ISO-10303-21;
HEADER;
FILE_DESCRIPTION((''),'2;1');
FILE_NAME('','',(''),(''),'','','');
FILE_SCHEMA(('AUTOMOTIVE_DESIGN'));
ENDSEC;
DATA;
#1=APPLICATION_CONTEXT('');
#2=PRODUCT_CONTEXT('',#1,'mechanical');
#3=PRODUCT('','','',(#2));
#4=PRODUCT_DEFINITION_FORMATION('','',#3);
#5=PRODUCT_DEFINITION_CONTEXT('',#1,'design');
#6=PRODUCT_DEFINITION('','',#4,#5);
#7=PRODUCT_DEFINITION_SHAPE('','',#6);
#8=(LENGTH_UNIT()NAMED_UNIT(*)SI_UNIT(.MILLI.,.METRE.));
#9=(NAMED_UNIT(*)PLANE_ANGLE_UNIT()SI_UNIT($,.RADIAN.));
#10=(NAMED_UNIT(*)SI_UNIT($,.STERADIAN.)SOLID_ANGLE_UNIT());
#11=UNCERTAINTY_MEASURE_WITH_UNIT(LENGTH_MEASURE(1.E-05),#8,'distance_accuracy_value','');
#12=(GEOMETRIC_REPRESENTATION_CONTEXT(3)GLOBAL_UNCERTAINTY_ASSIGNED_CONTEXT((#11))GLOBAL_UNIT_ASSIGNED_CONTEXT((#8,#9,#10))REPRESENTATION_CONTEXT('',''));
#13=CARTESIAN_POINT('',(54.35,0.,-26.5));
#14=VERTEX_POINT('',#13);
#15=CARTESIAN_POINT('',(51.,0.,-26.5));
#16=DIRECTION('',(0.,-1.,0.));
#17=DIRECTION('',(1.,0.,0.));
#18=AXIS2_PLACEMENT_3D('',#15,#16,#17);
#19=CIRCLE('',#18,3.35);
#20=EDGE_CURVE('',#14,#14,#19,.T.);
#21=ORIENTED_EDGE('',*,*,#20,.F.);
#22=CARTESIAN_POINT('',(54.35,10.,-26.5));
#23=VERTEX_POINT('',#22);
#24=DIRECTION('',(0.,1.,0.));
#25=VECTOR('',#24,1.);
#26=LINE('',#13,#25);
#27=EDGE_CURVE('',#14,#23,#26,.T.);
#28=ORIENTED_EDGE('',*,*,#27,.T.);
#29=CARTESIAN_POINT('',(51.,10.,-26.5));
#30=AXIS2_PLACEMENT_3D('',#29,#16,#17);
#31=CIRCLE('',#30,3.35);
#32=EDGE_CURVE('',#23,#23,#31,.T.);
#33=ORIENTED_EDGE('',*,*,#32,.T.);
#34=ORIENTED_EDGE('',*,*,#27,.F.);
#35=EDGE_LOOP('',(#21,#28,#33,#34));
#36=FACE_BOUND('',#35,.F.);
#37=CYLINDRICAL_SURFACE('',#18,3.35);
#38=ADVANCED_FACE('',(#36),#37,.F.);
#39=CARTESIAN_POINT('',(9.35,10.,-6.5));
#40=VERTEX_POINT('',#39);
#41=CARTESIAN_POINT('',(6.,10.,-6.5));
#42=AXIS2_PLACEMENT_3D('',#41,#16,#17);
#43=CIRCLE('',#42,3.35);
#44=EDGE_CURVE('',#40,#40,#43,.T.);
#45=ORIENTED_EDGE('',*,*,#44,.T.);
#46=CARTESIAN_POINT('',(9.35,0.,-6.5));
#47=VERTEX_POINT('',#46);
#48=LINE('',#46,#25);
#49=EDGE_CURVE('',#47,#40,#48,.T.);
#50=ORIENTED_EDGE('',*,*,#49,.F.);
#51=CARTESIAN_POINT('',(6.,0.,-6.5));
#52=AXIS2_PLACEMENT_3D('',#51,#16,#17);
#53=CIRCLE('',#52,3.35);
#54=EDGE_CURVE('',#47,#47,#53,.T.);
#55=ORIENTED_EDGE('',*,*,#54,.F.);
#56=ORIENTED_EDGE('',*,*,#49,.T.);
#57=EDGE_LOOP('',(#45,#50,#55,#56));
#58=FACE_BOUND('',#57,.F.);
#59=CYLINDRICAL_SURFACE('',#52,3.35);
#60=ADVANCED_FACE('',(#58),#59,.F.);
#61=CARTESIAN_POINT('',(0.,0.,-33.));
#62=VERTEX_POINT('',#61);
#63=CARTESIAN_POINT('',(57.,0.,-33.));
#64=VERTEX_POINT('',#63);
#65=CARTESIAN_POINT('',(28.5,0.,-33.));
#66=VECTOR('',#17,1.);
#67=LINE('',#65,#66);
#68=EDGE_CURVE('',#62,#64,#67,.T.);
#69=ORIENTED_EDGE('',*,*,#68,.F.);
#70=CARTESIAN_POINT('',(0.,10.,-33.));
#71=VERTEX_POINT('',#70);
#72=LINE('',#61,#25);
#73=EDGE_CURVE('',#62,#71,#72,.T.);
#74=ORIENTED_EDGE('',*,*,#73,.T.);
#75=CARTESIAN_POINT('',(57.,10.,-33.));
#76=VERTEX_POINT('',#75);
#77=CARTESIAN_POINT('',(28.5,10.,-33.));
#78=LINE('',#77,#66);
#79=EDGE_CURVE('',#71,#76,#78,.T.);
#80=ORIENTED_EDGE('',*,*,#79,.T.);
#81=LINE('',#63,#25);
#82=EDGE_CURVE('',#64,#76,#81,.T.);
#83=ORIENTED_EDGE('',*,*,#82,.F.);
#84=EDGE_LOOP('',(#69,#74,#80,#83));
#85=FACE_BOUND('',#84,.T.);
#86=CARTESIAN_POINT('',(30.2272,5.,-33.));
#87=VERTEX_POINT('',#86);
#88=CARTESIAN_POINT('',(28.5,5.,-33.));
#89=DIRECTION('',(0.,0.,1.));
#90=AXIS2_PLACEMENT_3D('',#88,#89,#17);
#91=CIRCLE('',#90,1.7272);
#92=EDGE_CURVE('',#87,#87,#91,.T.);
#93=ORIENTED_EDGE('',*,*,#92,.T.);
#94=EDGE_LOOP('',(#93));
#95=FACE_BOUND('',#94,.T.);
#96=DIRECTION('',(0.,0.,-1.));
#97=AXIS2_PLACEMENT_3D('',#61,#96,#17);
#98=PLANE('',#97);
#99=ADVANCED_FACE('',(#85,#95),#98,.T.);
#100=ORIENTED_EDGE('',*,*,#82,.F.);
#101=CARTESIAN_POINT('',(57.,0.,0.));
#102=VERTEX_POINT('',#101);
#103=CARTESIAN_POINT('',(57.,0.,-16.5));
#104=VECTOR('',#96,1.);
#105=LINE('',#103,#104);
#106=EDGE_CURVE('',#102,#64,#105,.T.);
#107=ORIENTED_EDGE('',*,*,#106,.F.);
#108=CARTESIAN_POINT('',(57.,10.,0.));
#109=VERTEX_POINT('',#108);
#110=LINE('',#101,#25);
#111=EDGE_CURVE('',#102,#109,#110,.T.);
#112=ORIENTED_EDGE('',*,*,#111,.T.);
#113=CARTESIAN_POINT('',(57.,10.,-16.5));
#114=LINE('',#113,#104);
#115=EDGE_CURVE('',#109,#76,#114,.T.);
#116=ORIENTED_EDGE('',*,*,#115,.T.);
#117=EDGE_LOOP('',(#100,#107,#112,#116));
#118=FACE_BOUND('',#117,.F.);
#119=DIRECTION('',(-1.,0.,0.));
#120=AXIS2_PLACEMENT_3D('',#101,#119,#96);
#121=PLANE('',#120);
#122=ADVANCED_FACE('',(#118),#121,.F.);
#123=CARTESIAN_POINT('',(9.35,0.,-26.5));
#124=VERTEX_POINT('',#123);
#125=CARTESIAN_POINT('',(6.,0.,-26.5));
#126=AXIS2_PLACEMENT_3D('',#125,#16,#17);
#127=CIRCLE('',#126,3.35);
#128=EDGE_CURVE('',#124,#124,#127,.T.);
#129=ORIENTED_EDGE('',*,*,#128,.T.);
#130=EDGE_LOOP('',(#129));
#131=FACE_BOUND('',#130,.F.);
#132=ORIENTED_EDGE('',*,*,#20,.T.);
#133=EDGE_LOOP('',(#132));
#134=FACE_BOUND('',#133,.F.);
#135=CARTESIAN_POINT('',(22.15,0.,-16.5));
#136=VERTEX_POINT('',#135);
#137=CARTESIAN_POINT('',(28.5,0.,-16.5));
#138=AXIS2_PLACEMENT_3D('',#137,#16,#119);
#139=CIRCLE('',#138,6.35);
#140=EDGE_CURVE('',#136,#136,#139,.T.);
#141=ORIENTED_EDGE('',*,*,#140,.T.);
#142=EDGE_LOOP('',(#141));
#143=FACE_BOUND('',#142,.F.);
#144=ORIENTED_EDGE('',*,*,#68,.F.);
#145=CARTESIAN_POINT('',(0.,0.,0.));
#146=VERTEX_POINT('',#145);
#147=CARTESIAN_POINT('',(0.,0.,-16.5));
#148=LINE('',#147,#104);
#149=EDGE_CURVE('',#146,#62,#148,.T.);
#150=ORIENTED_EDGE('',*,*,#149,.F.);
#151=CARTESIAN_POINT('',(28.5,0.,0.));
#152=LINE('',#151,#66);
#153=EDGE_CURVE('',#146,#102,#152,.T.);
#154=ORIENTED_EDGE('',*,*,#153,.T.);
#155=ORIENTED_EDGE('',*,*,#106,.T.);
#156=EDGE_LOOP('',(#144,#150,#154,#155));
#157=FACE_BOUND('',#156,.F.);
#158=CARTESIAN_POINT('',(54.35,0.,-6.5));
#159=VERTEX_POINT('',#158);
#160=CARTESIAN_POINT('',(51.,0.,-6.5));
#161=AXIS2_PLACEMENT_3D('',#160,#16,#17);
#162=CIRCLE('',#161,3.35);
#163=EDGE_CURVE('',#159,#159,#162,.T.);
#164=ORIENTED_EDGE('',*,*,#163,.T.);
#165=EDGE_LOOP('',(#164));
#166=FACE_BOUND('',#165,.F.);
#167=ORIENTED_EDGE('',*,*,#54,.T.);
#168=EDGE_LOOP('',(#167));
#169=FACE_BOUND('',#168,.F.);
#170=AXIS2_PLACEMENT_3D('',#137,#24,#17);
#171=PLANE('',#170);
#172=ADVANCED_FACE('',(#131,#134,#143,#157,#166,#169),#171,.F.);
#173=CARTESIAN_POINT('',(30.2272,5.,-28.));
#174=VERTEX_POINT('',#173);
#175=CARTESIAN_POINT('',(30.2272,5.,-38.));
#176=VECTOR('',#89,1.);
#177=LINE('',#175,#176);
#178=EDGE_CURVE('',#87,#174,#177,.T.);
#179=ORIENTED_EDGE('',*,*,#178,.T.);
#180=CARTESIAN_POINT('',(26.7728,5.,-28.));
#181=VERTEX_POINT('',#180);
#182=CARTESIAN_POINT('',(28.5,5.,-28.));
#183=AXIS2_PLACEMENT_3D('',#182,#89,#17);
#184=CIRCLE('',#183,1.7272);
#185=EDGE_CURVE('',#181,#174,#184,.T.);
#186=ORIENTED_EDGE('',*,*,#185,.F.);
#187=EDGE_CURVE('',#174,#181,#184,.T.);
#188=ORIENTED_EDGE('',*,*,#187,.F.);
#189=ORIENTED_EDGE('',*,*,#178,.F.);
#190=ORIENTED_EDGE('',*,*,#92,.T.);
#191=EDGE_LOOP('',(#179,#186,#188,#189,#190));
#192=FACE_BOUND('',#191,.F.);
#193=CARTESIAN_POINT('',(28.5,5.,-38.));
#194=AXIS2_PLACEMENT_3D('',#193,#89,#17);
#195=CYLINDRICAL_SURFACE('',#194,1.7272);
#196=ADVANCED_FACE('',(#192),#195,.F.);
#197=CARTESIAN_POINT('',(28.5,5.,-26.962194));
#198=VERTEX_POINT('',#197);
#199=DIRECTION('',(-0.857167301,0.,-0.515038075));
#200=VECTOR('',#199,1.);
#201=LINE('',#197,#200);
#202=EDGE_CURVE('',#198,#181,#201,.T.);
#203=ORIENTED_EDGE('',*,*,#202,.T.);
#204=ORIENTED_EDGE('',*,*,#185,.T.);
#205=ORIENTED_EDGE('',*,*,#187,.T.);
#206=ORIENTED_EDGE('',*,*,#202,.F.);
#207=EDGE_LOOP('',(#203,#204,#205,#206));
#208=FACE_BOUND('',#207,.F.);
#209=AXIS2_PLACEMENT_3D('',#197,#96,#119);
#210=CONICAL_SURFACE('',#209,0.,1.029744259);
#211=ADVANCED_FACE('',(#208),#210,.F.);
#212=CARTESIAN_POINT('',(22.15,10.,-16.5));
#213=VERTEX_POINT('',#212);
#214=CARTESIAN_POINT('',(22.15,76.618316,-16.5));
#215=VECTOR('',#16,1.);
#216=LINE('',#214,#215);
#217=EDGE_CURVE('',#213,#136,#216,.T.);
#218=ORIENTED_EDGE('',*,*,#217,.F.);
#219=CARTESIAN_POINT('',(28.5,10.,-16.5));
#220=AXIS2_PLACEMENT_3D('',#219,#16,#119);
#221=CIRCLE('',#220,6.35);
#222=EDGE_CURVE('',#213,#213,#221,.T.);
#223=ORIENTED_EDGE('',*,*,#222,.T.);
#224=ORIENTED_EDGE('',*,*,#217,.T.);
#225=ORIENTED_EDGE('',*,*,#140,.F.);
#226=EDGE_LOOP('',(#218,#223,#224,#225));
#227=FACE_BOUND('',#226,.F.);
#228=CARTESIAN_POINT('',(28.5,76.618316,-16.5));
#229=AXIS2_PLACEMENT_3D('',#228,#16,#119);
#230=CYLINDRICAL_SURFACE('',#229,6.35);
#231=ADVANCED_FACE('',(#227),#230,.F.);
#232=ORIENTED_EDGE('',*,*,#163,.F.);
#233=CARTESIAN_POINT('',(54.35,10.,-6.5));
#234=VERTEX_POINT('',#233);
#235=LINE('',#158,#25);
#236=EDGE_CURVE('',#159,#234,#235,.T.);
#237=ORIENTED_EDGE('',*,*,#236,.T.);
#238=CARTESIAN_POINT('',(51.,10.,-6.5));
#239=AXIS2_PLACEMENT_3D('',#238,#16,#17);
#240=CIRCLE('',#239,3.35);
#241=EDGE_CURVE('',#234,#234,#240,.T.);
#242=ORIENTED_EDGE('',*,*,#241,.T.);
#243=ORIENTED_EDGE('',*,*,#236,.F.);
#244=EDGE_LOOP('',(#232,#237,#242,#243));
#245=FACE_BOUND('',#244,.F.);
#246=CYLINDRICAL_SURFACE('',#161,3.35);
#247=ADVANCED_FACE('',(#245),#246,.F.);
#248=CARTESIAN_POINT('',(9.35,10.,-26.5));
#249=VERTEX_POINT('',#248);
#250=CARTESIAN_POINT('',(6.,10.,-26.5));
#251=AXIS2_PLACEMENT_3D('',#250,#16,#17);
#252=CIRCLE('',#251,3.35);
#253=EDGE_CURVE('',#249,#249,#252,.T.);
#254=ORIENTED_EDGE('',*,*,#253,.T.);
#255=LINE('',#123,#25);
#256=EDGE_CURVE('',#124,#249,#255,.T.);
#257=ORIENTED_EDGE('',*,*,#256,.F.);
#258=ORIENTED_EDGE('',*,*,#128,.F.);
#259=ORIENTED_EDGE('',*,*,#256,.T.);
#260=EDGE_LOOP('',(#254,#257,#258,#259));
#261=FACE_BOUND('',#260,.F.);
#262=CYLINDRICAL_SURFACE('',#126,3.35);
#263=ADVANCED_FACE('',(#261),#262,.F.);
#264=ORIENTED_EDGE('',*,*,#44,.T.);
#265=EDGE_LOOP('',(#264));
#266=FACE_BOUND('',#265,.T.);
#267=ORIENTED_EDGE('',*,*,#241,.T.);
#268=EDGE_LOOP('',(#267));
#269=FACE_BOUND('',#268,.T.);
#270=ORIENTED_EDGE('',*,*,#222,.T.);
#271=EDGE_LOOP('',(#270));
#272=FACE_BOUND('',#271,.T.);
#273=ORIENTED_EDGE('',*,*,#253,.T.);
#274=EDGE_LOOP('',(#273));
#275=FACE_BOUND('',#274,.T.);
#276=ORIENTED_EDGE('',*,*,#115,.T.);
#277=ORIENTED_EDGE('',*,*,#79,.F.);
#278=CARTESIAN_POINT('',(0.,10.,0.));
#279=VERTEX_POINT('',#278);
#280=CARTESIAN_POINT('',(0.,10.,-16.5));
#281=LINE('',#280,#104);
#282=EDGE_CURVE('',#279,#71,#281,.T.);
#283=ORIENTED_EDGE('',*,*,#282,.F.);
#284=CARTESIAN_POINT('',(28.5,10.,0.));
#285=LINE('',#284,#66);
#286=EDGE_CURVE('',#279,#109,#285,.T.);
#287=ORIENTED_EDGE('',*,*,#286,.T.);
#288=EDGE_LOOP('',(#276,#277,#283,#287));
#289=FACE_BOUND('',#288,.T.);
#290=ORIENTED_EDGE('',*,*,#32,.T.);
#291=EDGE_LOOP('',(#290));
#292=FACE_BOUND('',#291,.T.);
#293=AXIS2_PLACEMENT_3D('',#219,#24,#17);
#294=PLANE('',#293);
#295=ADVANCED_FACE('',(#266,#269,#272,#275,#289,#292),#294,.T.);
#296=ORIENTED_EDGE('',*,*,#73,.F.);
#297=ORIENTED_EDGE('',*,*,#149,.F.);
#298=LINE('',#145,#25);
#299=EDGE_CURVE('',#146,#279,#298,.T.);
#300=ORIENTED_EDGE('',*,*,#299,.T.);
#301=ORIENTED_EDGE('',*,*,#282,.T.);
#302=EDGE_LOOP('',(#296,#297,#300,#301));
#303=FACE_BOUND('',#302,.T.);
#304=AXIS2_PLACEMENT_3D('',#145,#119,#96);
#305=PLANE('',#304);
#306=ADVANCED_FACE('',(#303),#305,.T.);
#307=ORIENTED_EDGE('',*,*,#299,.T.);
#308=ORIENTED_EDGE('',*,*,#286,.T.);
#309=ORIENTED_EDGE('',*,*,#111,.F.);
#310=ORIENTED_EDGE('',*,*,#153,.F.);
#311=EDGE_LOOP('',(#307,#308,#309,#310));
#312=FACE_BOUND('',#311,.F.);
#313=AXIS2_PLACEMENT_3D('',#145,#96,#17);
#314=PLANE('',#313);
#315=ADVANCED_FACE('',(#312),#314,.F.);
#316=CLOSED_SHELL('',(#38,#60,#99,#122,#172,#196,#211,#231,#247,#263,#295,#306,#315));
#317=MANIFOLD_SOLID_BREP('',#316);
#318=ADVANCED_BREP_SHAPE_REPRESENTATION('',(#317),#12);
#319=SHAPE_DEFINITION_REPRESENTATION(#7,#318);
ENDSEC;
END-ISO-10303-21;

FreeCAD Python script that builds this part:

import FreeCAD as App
import Part
import Sketcher

V = App.Vector
Q = App.Units.Quantity


def add_polygon(sketch, points):
    """Adds a closed chain of lines whose ends are joined by coincident constraints."""
    first, n = sketch.GeometryCount, len(points)
    for a, b in zip(points, points[1:] + points[:1]):
        sketch.addGeometry(Part.LineSegment(App.Vector(*a, 0), App.Vector(*b, 0)), False)
    for i in range(n):
        sketch.addConstraint(Sketcher.Constraint("Coincident", first + i, 2, first + (i + 1) % n, 1))

doc = App.newDocument("Part")
body = doc.addObject("PartDesign::Body", "Body")

# Sketch on XZ plane
sketch1 = body.newObject("Sketcher::SketchObject", "Sketch")
sketch1.AttachmentSupport = (doc.getObject("XZ_Plane"), [""])
sketch1.MapMode = "FlatFace"
add_polygon(sketch1, [(0, -33), (0, 0), (57, 0), (57, -33)])  # lines 0-3
sketch1.addConstraint([
    Sketcher.Constraint("Vertical", 0),
    Sketcher.Constraint("Horizontal", 1),
    Sketcher.Constraint("Vertical", 2),
    Sketcher.Constraint("Horizontal", 3),
    Sketcher.Constraint("Coincident", 0, 2, -1, 1),
    Sketcher.Constraint("DistanceX", 1, 1, 1, 2, Q("57 mm")),
    Sketcher.Constraint("DistanceY", 0, 1, 0, 2, Q("33 mm")),
])
pad1 = body.newObject("PartDesign::Pad", "Pad")
pad1.Profile = sketch1
pad1.Length = 10
pad1.Reversed = True

# Sketch on XZ plane
sketch2 = body.newObject("Sketcher::SketchObject", "Sketch001")
sketch2.AttachmentSupport = (doc.getObject("XZ_Plane"), [""])
sketch2.MapMode = "FlatFace"
sketch2.addGeometry(Part.Circle(V(6, -6.5, 0), V(0, 0, 1), 3.4), False)
sketch2.addConstraint([
    Sketcher.Constraint("Diameter", 0, Q("6.7 mm")),
    Sketcher.Constraint("DistanceX", -1, 1, 0, 3, Q("6 mm")),
    Sketcher.Constraint("DistanceY", 0, 3, -1, 1, Q("6.5 mm")),
])
pocket1 = body.newObject("PartDesign::Pocket", "Pocket")
pocket1.Profile = sketch2
pocket1.Type = "ThroughAll"

# Sketch on XZ plane
sketch3 = body.newObject("Sketcher::SketchObject", "Sketch002")
sketch3.AttachmentSupport = (doc.getObject("XZ_Plane"), [""])
sketch3.MapMode = "FlatFace"
sketch3.addGeometry(Part.Circle(V(51, -26.5, 0), V(0, 0, 1), 3.4), False)
sketch3.addConstraint([
    Sketcher.Constraint("Diameter", 0, Q("6.7 mm")),
    Sketcher.Constraint("DistanceX", -1, 1, 0, 3, Q("51 mm")),
    Sketcher.Constraint("DistanceY", 0, 3, -1, 1, Q("26.5 mm")),
])
pocket2 = body.newObject("PartDesign::Pocket", "Pocket001")
pocket2.Profile = sketch3
pocket2.Type = "ThroughAll"

# Sketch on XZ plane
sketch4 = body.newObject("Sketcher::SketchObject", "Sketch003")
sketch4.AttachmentSupport = (doc.getObject("XZ_Plane"), [""])
sketch4.MapMode = "FlatFace"
sketch4.addGeometry(Part.Circle(V(6, -26.5, 0), V(0, 0, 1), 3.4), False)
sketch4.addConstraint([
    Sketcher.Constraint("Diameter", 0, Q("6.7 mm")),
    Sketcher.Constraint("DistanceX", -1, 1, 0, 3, Q("6 mm")),
    Sketcher.Constraint("DistanceY", 0, 3, -1, 1, Q("26.5 mm")),
])
pocket3 = body.newObject("PartDesign::Pocket", "Pocket002")
pocket3.Profile = sketch4
pocket3.Type = "ThroughAll"

# Sketch on XZ plane
sketch5 = body.newObject("Sketcher::SketchObject", "Sketch004")
sketch5.AttachmentSupport = (doc.getObject("XZ_Plane"), [""])
sketch5.MapMode = "FlatFace"
sketch5.addGeometry(Part.Circle(V(51, -6.5, 0), V(0, 0, 1), 3.4), False)
sketch5.addConstraint([
    Sketcher.Constraint("Diameter", 0, Q("6.7 mm")),
    Sketcher.Constraint("DistanceX", -1, 1, 0, 3, Q("51 mm")),
    Sketcher.Constraint("DistanceY", 0, 3, -1, 1, Q("6.5 mm")),
])
pocket4 = body.newObject("PartDesign::Pocket", "Pocket003")
pocket4.Profile = sketch5
pocket4.Type = "ThroughAll"

# Sketch on XY plane
sketch6 = body.newObject("Sketcher::SketchObject", "Sketch005")
sketch6.AttachmentSupport = (doc.getObject("XY_Plane"), [""])
sketch6.MapMode = "FlatFace"
sketch6.AttachmentOffset = App.Placement(V(0, 0, -33), App.Rotation())
sketch6.addGeometry(Part.Circle(V(28.5, 5, 0), V(0, 0, 1), 1.7), False)
sketch6.addConstraint([
    Sketcher.Constraint("DistanceY", -1, 1, 0, 3, Q("5 mm")),
    Sketcher.Constraint("Diameter", 0, Q("3.4544 mm")),
    Sketcher.Constraint("DistanceX", -1, 1, 0, 3, Q("28.5 mm")),
])
doc.recompute()
hole = body.newObject("PartDesign::Hole", "Hole")
hole.Profile = sketch6
hole.ThreadType = "None"
hole.Diameter = 3.4544
hole.DepthType = "Dimension"
hole.Depth = 5
hole.DrillPoint = "Angled"
hole.DrillPointAngle = 118
hole.Reversed = True

# Sketch on XZ plane
sketch7 = body.newObject("Sketcher::SketchObject", "Sketch006")
sketch7.AttachmentSupport = (doc.getObject("XZ_Plane"), [""])
sketch7.MapMode = "FlatFace"
sketch7.AttachmentOffset = App.Placement(V(0, 0, -10), App.Rotation())
sketch7.addGeometry(Part.Circle(V(28, -16, 0), V(0, 0, 1), 6), False)
sketch7.addConstraint([
    Sketcher.Constraint("Diameter", 0, Q("12.7 mm")),
    Sketcher.Constraint("DistanceX", -1, 1, 0, 3, Q("28.5 mm")),
    Sketcher.Constraint("DistanceY", 0, 3, -1, 1, Q("16.5 mm")),
])
doc.recompute()
hole2 = body.newObject("PartDesign::Hole", "Hole001")
hole2.Profile = sketch7
hole2.ThreadType = "None"
hole2.Diameter = 12.7
hole2.DepthType = "ThroughAll"
hole2.Reversed = True

doc.recompute()
